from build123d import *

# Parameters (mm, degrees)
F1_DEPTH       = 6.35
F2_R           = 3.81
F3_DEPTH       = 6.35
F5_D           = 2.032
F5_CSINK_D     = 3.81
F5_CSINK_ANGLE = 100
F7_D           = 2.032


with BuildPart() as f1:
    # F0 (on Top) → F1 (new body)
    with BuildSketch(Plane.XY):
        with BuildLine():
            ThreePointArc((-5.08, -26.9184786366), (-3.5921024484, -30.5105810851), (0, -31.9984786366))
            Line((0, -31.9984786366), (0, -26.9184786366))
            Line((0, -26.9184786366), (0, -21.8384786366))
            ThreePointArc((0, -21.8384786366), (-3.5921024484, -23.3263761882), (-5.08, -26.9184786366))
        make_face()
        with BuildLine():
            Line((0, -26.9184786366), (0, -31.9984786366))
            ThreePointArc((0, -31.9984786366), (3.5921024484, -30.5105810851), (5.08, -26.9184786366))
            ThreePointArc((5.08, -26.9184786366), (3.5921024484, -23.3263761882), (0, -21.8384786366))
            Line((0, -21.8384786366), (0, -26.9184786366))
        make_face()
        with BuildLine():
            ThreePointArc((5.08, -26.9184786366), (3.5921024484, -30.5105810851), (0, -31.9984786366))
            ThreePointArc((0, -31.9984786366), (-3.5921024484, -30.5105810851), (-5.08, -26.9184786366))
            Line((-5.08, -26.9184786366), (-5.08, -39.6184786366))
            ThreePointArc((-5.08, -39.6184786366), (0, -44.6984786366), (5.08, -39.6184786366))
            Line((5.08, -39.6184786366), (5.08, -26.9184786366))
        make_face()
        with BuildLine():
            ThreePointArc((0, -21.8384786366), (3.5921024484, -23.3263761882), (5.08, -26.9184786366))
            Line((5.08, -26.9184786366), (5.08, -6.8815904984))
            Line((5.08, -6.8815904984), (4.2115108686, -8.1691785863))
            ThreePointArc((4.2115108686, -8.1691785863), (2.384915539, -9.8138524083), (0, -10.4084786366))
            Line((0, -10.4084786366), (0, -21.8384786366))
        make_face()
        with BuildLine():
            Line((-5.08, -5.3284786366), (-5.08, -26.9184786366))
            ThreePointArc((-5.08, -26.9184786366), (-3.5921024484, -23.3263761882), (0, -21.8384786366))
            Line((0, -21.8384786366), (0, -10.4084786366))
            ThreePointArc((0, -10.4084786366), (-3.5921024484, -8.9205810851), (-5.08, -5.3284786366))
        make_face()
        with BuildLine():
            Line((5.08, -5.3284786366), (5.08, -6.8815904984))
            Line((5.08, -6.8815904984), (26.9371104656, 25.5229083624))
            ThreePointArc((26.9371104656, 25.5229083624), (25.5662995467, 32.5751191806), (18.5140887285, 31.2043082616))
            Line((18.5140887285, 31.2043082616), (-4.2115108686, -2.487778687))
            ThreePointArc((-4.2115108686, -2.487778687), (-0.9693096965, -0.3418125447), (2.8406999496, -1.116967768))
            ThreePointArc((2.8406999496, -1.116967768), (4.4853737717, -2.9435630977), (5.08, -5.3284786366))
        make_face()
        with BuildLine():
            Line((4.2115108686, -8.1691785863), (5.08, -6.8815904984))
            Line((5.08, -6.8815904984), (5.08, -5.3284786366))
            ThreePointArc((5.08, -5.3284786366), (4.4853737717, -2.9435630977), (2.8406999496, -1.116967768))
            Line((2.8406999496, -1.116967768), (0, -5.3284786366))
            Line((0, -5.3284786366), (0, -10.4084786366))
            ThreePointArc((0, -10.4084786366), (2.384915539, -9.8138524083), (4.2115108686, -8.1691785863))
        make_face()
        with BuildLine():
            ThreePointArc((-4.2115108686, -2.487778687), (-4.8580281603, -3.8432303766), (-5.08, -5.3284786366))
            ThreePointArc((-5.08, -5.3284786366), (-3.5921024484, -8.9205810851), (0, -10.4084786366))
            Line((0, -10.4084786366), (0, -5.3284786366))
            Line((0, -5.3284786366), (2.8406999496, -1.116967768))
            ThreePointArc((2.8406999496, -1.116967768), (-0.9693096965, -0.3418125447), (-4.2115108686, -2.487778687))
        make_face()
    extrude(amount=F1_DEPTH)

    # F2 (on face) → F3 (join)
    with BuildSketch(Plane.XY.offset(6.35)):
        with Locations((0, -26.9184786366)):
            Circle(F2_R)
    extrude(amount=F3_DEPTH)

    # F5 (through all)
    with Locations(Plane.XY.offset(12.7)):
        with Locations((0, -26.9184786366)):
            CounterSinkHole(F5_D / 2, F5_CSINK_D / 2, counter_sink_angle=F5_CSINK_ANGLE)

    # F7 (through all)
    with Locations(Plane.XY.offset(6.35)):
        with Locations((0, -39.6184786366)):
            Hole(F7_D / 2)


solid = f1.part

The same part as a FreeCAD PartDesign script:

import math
import FreeCAD as App
import Part
import Sketcher
from FreeCAD import Vector
Q = App.Units.Quantity

doc = App.newDocument("Part")
body = doc.addObject("PartDesign::Body", "Body")

# Sketch on XY plane
sketch1 = body.newObject("Sketcher::SketchObject", "Sketch")
sketch1.AttachmentSupport = (doc.getObject("XY_Plane"), [""])
sketch1.MapMode = "FlatFace"
sketch1.addGeometry(Part.ArcOfCircle(Part.Circle(Vector(0, -39.6, 0), Vector(0, 0, 1), 5.1), math.radians(180), math.radians(360)), False)
sketch1.addGeometry(Part.LineSegment(Vector(5.1, -39.6, 0), Vector(5.1, -6.9, 0)), False)
sketch1.addGeometry(Part.LineSegment(Vector(5.1, -6.9, 0), Vector(26.9, 25.5, 0)), False)
sketch1.addGeometry(Part.ArcOfCircle(Part.Circle(Vector(22.7, 28.4, 0), Vector(0, 0, 1), 5.1), math.radians(-34), math.radians(146)), False)
sketch1.addGeometry(Part.LineSegment(Vector(18.5, 31.2, 0), Vector(-4.2, -2.5, 0)), False)
sketch1.addGeometry(Part.ArcOfCircle(Part.Circle(Vector(0, -5.3, 0), Vector(0, 0, 1), 5.1), math.radians(146), math.radians(180)), False)
sketch1.addGeometry(Part.LineSegment(Vector(-5.1, -5.3, 0), Vector(-5.1, -39.6, 0)), False)
sketch1.addConstraint(Sketcher.Constraint("Tangent", 0, 2, 1, 1))
sketch1.addConstraint(Sketcher.Constraint("Coincident", 1, 2, 2, 1))
sketch1.addConstraint(Sketcher.Constraint("Tangent", 2, 2, 3, 1))
sketch1.addConstraint(Sketcher.Constraint("Tangent", 3, 2, 4, 1))
sketch1.addConstraint(Sketcher.Constraint("Tangent", 4, 2, 5, 1))
sketch1.addConstraint(Sketcher.Constraint("Tangent", 5, 2, 6, 1))
sketch1.addConstraint(Sketcher.Constraint("Tangent", 6, 2, 0, 1))
sketch1.addConstraint(Sketcher.Constraint("Vertical", 1))
sketch1.addConstraint(Sketcher.Constraint("Vertical", 6))
sketch1.addConstraint(Sketcher.Constraint("Equal", 0, 3))
sketch1.addConstraint(Sketcher.Constraint("Equal", 3, 5))
sketch1.addConstraint(Sketcher.Constraint("PointOnObject", 0, 3, -2))
sketch1.addConstraint(Sketcher.Constraint("Parallel", 2, 4))
sketch1.addConstraint(Sketcher.Constraint("Radius", 0, Q("0.2 in")))
sketch1.addConstraint(Sketcher.Constraint("Angle", 2, Q("56 deg")))
sketch1.addConstraint(Sketcher.Constraint("Distance", 4, Q("1.6 in")))
sketch1.addConstraint(Sketcher.Constraint("DistanceY", 6, 2, 6, 1, Q("1.35 in")))
sketch1.addConstraint(Sketcher.Constraint("DistanceY", 0, 3, -1, 1, 39.618479))
pad1 = body.newObject("PartDesign::Pad", "Pad")
pad1.Profile = sketch1
pad1.Length = Q("0.25 in")

# Sketch on XY plane
sketch2 = body.newObject("Sketcher::SketchObject", "Sketch001")
sketch2.AttachmentSupport = (doc.getObject("XY_Plane"), [""])
sketch2.MapMode = "FlatFace"
sketch2.AttachmentOffset = App.Placement(Vector(0, 0, 0.25 * 25.4), App.Rotation())
sketch2.addGeometry(Part.Circle(Vector(0, -26.9, 0), Vector(0, 0, 1), 3.8), False)
sketch2.addConstraint(Sketcher.Constraint("PointOnObject", 0, 3, -2))
sketch2.addConstraint(Sketcher.Constraint("Diameter", 0, Q("0.3 in")))
sketch2.addConstraint(Sketcher.Constraint("DistanceY", 0, 3, -1, 1, 26.918479))
pad2 = body.newObject("PartDesign::Pad", "Pad001")
pad2.Profile = sketch2
pad2.Length = Q("0.25 in")

# Sketch on XY plane
sketch3 = body.newObject("Sketcher::SketchObject", "Sketch002")
sketch3.AttachmentSupport = (doc.getObject("XY_Plane"), [""])
sketch3.MapMode = "FlatFace"
sketch3.AttachmentOffset = App.Placement(Vector(0, 0, 0.5 * 25.4), App.Rotation())
sketch3.addGeometry(Part.Circle(Vector(0, -26.9, 0), Vector(0, 0, 1), 1), False)
sketch3.addConstraint(Sketcher.Constraint("PointOnObject", 0, 3, -2))
sketch3.addConstraint(Sketcher.Constraint("Diameter", 0, Q("0.08 in")))
sketch3.addConstraint(Sketcher.Constraint("DistanceY", 0, 3, -1, 1, 26.918479))
doc.recompute()
hole = body.newObject("PartDesign::Hole", "Hole")
hole.Profile = sketch3
hole.ThreadType = "None"
hole.Diameter = Q("0.08 in")
hole.DepthType = "ThroughAll"
hole.HoleCutType = "Countersink"
hole.HoleCutDiameter = Q("0.15 in")
hole.HoleCutCountersinkAngle = 100

# Sketch on XY plane
sketch4 = body.newObject("Sketcher::SketchObject", "Sketch003")
sketch4.AttachmentSupport = (doc.getObject("XY_Plane"), [""])
sketch4.MapMode = "FlatFace"
sketch4.AttachmentOffset = App.Placement(Vector(0, 0, 0.25 * 25.4), App.Rotation())
sketch4.addGeometry(Part.Circle(Vector(0, -39.6, 0), Vector(0, 0, 1), 1), False)
sketch4.addConstraint(Sketcher.Constraint("PointOnObject", 0, 3, -2))
sketch4.addConstraint(Sketcher.Constraint("Diameter", 0, Q("0.08 in")))
sketch4.addConstraint(Sketcher.Constraint("DistanceY", 0, 3, -1, 1, 39.618479))
doc.recompute()
hole2 = body.newObject("PartDesign::Hole", "Hole001")
hole2.Profile = sketch4
hole2.ThreadType = "None"
hole2.Diameter = Q("0.08 in")
hole2.DepthType = "ThroughAll"

doc.recompute()
